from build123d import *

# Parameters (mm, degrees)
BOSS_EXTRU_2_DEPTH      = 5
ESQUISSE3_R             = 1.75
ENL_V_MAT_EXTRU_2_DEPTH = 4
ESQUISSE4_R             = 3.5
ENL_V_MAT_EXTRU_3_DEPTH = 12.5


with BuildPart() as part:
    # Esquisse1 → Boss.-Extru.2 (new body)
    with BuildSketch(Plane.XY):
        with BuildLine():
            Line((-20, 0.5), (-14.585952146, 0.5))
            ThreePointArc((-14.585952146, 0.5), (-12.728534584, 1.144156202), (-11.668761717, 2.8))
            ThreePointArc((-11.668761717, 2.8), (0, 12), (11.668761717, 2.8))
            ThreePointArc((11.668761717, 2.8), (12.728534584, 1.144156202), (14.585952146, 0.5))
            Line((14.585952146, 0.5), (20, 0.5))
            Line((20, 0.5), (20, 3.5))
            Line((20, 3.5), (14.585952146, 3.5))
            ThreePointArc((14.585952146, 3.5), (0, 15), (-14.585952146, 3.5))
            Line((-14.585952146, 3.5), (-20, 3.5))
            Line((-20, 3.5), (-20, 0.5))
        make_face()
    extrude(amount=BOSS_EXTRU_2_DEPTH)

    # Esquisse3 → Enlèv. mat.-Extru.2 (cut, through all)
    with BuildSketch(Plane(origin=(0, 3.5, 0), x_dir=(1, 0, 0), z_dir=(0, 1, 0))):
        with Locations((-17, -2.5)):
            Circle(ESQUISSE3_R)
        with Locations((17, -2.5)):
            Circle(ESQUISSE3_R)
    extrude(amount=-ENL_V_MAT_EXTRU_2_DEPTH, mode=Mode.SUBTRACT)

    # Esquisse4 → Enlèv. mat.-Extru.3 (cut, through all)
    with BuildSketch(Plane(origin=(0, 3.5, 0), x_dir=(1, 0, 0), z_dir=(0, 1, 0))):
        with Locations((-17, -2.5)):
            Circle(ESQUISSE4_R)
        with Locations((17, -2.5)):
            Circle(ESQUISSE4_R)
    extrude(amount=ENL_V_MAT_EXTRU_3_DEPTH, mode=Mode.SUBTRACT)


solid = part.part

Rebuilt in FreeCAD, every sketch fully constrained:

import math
import FreeCAD as App
import Part
import Sketcher
from FreeCAD import Vector

doc = App.newDocument("Part")
params = doc.addObject("Spreadsheet::Sheet", "Params")
for row, (alias, value) in enumerate([
    ("sketch1_radius", "3 mm"),
    ("sketch1_radius2", "12 mm"),
    ("pad1_length", "5 mm"),
    ("sketch2_diameter", "3.5 mm"),
    ("sketch3_diameter", "7 mm"),
], start=1):
    params.set(f"A{row}", alias)
    params.set(f"B{row}", "=" + value)
    params.setAlias(f"B{row}", alias)

body = doc.addObject("PartDesign::Body", "Body")

# Sketch on XY plane
sketch1 = body.newObject("Sketcher::SketchObject", "Sketch")
sketch1.AttachmentSupport = (doc.getObject("XY_Plane"), [""])
sketch1.MapMode = "FlatFace"
sketch1.addGeometry([
    Part.LineSegment(Vector(-20, 0.5, 0), Vector(-14.6, 0.5, 0)),  # 0
    Part.ArcOfCircle(Part.Circle(Vector(-14.6, 3.5, 0), Vector(0, 0, 1), 3), math.radians(-90), math.radians(-13)),  # 1
    Part.ArcOfCircle(Part.Circle(Vector(0, 0, 0), Vector(0, 0, 1), 12), math.radians(13), math.radians(167)),  # 2
    Part.ArcOfCircle(Part.Circle(Vector(14.6, 3.5, 0), Vector(0, 0, 1), 3), math.radians(-167), math.radians(-90)),  # 3
    Part.LineSegment(Vector(14.6, 0.5, 0), Vector(20, 0.5, 0)),  # 4
    Part.LineSegment(Vector(20, 0.5, 0), Vector(20, 3.5, 0)),  # 5
    Part.LineSegment(Vector(20, 3.5, 0), Vector(14.6, 3.5, 0)),  # 6
    Part.ArcOfCircle(Part.Circle(Vector(0, 0, 0), Vector(0, 0, 1), 15), math.radians(13), math.radians(167)),  # 7
    Part.LineSegment(Vector(-14.6, 3.5, 0), Vector(-20, 3.5, 0)),  # 8
    Part.LineSegment(Vector(-20, 3.5, 0), Vector(-20, 0.5, 0)),  # 9
], False)
sketch1.addConstraint([
    Sketcher.Constraint("Tangent", 0, 2, 1, 1),
    Sketcher.Constraint("Tangent", 1, 2, 2, 2),
    Sketcher.Constraint("Tangent", 2, 1, 3, 1),
    Sketcher.Constraint("Tangent", 3, 2, 4, 1),
    Sketcher.Constraint("Coincident", 4, 2, 5, 1),
    Sketcher.Constraint("Coincident", 5, 2, 6, 1),
    Sketcher.Constraint("Coincident", 6, 2, 7, 1),
    Sketcher.Constraint("Coincident", 7, 2, 8, 1),
    Sketcher.Constraint("Coincident", 8, 2, 9, 1),
    Sketcher.Constraint("Coincident", 9, 2, 0, 1),
    Sketcher.Constraint("Horizontal", 0),
    Sketcher.Constraint("Horizontal", 4),
    Sketcher.Constraint("Vertical", 5),
    Sketcher.Constraint("Horizontal", 6),
    Sketcher.Constraint("Horizontal", 8),
    Sketcher.Constraint("Vertical", 9),
    Sketcher.Constraint("Coincident", 2, 3, -1, 1),
    Sketcher.Constraint("Coincident", 7, 3, -1, 1),
    Sketcher.Constraint("Coincident", 6, 2, 3, 3),
    Sketcher.Constraint("Coincident", 7, 2, 1, 3),
    Sketcher.Constraint("Symmetric", 5, 2, 8, 2, -2),
    Sketcher.Constraint("Radius", 1, 3.0),
    Sketcher.Constraint("Radius", 2, 12.0),
    Sketcher.Constraint("DistanceX", -1, 1, 4, 2, 20.0),
    Sketcher.Constraint("DistanceY", -1, 1, 1, 3, 3.5),
])
sketch1.setExpression("Constraints[21]", "Params.sketch1_radius")
sketch1.setExpression("Constraints[22]", "Params.sketch1_radius2")
pad1 = body.newObject("PartDesign::Pad", "Pad")
pad1.Profile = sketch1
pad1.setExpression("Length", "Params.pad1_length")

# Sketch on XZ plane
sketch2 = body.newObject("Sketcher::SketchObject", "Sketch001")
sketch2.AttachmentSupport = (doc.getObject("XZ_Plane"), [""])
sketch2.MapMode = "FlatFace"
sketch2.AttachmentOffset = App.Placement(Vector(0, 0, -3.5), App.Rotation())
sketch2.addGeometry([
    Part.Circle(Vector(-17, 2.5, 0), Vector(0, 0, 1), 1.8),
    Part.Circle(Vector(17, 2.5, 0), Vector(0, 0, 1), 1.8),
], False)
sketch2.addConstraint([
    Sketcher.Constraint("Equal", 0, 1),
    Sketcher.Constraint("Symmetric", 0, 3, 1, 3, -2),
    Sketcher.Constraint("Diameter", 0, 3.5),
    Sketcher.Constraint("DistanceX", 0, 3, -1, 1, 17.0),
    Sketcher.Constraint("DistanceY", -1, 1, 0, 3, 2.5),
])
sketch2.setExpression("Constraints[2]", "Params.sketch2_diameter")
pocket1 = body.newObject("PartDesign::Pocket", "Pocket")
pocket1.Profile = sketch2
pocket1.Type = "ThroughAll"
pocket1.Reversed = True

# Sketch on XZ plane
sketch3 = body.newObject("Sketcher::SketchObject", "Sketch002")
sketch3.AttachmentSupport = (doc.getObject("XZ_Plane"), [""])
sketch3.MapMode = "FlatFace"
sketch3.AttachmentOffset = App.Placement(Vector(0, 0, -3.5), App.Rotation())
sketch3.addGeometry([
    Part.Circle(Vector(-17, 2.5, 0), Vector(0, 0, 1), 3.5),
    Part.Circle(Vector(17, 2.5, 0), Vector(0, 0, 1), 3.5),
], False)
sketch3.addConstraint([
    Sketcher.Constraint("Equal", 0, 1),
    Sketcher.Constraint("Symmetric", 0, 3, 1, 3, -2),
    Sketcher.Constraint("Diameter", 0, 7.0),
    Sketcher.Constraint("DistanceX", 0, 3, -1, 1, 17.0),
    Sketcher.Constraint("DistanceY", -1, 1, 0, 3, 2.5),
])
sketch3.setExpression("Constraints[2]", "Params.sketch3_diameter")
pocket2 = body.newObject("PartDesign::Pocket", "Pocket001")
pocket2.Profile = sketch3
pocket2.Type = "ThroughAll"

doc.recompute()
